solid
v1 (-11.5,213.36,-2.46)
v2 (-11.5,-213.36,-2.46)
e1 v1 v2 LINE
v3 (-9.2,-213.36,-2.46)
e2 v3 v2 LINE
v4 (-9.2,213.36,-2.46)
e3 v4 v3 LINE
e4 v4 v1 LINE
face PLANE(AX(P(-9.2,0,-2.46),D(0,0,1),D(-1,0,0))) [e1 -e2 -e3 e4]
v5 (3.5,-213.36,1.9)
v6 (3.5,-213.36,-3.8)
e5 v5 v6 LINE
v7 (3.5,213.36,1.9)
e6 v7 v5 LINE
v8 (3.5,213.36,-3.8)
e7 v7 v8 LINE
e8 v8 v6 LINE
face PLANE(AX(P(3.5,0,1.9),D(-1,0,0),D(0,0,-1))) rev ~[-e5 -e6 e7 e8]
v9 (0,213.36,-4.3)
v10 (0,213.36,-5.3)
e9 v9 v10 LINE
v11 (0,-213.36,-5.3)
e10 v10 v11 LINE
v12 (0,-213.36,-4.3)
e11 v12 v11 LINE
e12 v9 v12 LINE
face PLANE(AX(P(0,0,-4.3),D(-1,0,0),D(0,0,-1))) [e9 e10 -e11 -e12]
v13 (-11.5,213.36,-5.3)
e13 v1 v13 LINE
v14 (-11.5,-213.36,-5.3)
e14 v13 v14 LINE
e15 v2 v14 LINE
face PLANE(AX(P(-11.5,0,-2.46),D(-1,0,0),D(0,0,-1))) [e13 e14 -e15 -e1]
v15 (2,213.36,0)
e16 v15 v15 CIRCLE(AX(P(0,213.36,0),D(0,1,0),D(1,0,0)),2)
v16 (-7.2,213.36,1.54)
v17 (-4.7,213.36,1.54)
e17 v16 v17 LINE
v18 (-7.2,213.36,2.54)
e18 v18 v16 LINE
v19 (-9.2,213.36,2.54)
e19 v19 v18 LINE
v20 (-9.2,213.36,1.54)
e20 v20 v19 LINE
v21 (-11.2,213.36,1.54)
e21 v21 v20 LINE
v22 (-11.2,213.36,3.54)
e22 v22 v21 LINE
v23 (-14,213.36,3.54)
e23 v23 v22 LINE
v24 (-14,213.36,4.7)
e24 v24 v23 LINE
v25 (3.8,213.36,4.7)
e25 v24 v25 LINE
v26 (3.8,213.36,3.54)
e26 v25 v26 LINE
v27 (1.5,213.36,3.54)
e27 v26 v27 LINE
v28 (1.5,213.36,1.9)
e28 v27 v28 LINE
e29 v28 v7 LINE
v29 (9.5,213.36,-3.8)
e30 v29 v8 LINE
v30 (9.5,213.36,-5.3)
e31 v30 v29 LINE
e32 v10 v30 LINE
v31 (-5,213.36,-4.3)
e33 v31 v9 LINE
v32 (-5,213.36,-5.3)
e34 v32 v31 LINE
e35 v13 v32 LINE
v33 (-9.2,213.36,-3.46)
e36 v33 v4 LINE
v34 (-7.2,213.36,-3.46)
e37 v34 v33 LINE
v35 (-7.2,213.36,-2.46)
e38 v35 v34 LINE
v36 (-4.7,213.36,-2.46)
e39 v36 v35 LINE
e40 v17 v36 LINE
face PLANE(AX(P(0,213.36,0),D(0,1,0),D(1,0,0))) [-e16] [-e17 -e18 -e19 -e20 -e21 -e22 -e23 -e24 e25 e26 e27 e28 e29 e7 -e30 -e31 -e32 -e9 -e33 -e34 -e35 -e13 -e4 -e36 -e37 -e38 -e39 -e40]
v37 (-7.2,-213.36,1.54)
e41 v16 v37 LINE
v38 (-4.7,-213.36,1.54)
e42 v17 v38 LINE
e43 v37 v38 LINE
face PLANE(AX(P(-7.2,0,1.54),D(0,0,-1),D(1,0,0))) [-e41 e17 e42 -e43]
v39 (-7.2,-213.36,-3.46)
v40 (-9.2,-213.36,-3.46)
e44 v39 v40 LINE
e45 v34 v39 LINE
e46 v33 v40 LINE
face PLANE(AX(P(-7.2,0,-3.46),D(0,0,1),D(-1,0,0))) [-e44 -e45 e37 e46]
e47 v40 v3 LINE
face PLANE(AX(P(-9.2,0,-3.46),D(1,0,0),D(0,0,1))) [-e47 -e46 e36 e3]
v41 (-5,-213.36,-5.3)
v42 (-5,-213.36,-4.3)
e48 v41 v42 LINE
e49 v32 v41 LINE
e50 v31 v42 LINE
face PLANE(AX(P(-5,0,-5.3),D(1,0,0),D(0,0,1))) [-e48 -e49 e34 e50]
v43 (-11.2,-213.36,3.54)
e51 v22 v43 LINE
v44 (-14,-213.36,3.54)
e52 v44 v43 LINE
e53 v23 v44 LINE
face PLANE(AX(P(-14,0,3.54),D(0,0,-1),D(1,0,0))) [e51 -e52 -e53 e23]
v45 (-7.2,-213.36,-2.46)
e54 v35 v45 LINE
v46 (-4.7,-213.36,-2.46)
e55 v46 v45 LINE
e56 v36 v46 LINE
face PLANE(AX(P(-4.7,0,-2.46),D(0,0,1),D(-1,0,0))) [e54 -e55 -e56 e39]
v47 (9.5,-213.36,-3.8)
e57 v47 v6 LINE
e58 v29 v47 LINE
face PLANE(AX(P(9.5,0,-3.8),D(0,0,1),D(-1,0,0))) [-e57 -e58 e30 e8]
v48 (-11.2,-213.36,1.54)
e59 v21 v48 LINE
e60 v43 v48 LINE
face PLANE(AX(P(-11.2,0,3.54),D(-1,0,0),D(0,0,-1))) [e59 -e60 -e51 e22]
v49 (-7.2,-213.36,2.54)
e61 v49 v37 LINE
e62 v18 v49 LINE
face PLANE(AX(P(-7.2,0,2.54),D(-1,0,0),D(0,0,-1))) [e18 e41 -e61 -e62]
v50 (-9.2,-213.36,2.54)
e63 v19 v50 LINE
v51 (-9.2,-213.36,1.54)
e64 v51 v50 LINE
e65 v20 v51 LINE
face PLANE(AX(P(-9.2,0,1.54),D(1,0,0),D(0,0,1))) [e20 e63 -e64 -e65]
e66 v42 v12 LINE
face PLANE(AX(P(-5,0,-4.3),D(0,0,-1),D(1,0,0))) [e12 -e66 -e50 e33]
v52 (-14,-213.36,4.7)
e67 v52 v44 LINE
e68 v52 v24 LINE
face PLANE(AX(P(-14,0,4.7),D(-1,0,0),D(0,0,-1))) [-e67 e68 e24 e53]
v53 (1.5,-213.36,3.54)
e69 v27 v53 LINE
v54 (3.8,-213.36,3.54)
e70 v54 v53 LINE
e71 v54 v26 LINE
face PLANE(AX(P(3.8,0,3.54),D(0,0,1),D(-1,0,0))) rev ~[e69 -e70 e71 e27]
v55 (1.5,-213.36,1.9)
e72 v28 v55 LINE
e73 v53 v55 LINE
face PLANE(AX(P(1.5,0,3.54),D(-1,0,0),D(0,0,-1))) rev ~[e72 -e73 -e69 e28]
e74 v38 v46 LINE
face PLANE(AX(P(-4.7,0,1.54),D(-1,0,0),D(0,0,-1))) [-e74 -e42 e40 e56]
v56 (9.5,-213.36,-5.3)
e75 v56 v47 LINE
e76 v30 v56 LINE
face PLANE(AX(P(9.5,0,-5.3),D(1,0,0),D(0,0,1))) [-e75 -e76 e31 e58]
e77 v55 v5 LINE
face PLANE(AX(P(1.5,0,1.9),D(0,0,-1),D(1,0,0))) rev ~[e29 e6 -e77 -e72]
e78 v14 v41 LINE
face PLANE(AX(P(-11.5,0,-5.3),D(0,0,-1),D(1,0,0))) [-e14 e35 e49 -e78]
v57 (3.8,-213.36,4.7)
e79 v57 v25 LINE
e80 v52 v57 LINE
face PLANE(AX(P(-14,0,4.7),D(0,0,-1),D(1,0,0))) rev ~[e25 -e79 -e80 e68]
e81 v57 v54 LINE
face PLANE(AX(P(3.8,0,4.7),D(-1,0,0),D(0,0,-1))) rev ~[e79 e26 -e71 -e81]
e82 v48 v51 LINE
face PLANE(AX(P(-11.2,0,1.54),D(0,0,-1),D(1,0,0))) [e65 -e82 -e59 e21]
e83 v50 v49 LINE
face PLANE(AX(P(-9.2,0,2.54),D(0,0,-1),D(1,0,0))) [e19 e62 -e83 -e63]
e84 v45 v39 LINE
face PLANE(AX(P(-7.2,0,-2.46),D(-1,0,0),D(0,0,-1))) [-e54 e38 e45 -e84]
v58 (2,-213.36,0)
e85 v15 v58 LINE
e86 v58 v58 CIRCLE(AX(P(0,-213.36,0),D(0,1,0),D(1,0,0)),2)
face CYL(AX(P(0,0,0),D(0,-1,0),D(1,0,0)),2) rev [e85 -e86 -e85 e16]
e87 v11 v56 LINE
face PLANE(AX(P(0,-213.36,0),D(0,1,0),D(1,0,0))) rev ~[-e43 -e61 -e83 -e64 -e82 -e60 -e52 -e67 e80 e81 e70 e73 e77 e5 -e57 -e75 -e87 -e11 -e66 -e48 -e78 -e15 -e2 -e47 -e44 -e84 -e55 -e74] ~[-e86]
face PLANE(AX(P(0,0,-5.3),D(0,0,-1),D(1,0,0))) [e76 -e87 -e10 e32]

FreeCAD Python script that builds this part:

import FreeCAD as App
import Part
import Sketcher
Q = App.Units.Quantity


def add_polygon(sketch, points):
    """Adds a closed chain of lines whose ends are joined by coincident constraints."""
    first, n = sketch.GeometryCount, len(points)
    for a, b in zip(points, points[1:] + points[:1]):
        sketch.addGeometry(Part.LineSegment(App.Vector(*a, 0), App.Vector(*b, 0)), False)
    for i in range(n):
        sketch.addConstraint(Sketcher.Constraint("Coincident", first + i, 2, first + (i + 1) % n, 1))

doc = App.newDocument("Part")
body = doc.addObject("PartDesign::Body", "Body")

sketch1 = doc.addObject("Sketcher::SketchObject", "Sketch")
body.addObject(sketch1)
sketch1.AttachmentSupport = (doc.XZ_Plane, [""])
sketch1.MapMode = "FlatFace"
add_polygon(sketch1, [(-14, 3.5), (-14, 4.7), (3.8, 4.7), (3.8, 3.5), (1.5, 3.5), (1.5, 1.9), (3.5, 1.9), (3.5, -3.8), (9.5, -3.8), (9.5, -5.3), (0, -5.3), (0, -4.3), (-5, -4.3), (-5, -5.3), (-11.5, -5.3), (-11.5, -2.5), (-9.2, -2.5), (-9.2, -3.5), (-7.2, -3.5), (-7.2, -2.5), (-4.7, -2.5), (-4.7, 1.5), (-7.2, 1.5), (-7.2, 2.5), (-9.2, 2.5), (-9.2, 1.5), (-11.2, 1.5), (-11.2, 3.5)])
sketch1.addGeometry(Part.Circle(App.Vector(0, 0, 0), App.Vector(0, 0, 1), 2), False)
sketch1.addConstraint(Sketcher.Constraint("Vertical", 0))
sketch1.addConstraint(Sketcher.Constraint("Horizontal", 1))
sketch1.addConstraint(Sketcher.Constraint("Vertical", 2))
sketch1.addConstraint(Sketcher.Constraint("Horizontal", 3))
sketch1.addConstraint(Sketcher.Constraint("Vertical", 4))
sketch1.addConstraint(Sketcher.Constraint("Horizontal", 5))
sketch1.addConstraint(Sketcher.Constraint("Vertical", 6))
sketch1.addConstraint(Sketcher.Constraint("Horizontal", 7))
sketch1.addConstraint(Sketcher.Constraint("Vertical", 8))
sketch1.addConstraint(Sketcher.Constraint("Horizontal", 9))
sketch1.addConstraint(Sketcher.Constraint("Vertical", 10))
sketch1.addConstraint(Sketcher.Constraint("Horizontal", 11))
sketch1.addConstraint(Sketcher.Constraint("Vertical", 12))
sketch1.addConstraint(Sketcher.Constraint("Horizontal", 13))
sketch1.addConstraint(Sketcher.Constraint("Vertical", 14))
sketch1.addConstraint(Sketcher.Constraint("Horizontal", 15))
sketch1.addConstraint(Sketcher.Constraint("Vertical", 16))
sketch1.addConstraint(Sketcher.Constraint("Horizontal", 17))
sketch1.addConstraint(Sketcher.Constraint("Vertical", 18))
sketch1.addConstraint(Sketcher.Constraint("Horizontal", 19))
sketch1.addConstraint(Sketcher.Constraint("Vertical", 20))
sketch1.addConstraint(Sketcher.Constraint("Horizontal", 21))
sketch1.addConstraint(Sketcher.Constraint("Vertical", 22))
sketch1.addConstraint(Sketcher.Constraint("Horizontal", 23))
sketch1.addConstraint(Sketcher.Constraint("Vertical", 24))
sketch1.addConstraint(Sketcher.Constraint("Horizontal", 25))
sketch1.addConstraint(Sketcher.Constraint("Vertical", 26))
sketch1.addConstraint(Sketcher.Constraint("Horizontal", 27))
sketch1.addConstraint(Sketcher.Constraint("Coincident", 28, 3, -1, 1))
sketch1.addConstraint(Sketcher.Constraint("PointOnObject", 9, 2, -2))
sketch1.addConstraint(Sketcher.Constraint("Horizontal", 9, 2, 12, 2))
sketch1.addConstraint(Sketcher.Constraint("Horizontal", 15, 2, 18, 2))
sketch1.addConstraint(Sketcher.Constraint("Horizontal", 21, 2, 24, 2))
sketch1.addConstraint(Sketcher.Constraint("Horizontal", 3, 2, 26, 2))
sketch1.addConstraint(Sketcher.Constraint("Vertical", 18, 2, 21, 2))
sketch1.addConstraint(Sketcher.Constraint("Vertical", 16, 2, 23, 2))
sketch1.addConstraint(Sketcher.Constraint("Equal", 3, 15))
sketch1.addConstraint(Sketcher.Constraint("Equal", 5, 17))
sketch1.addConstraint(Sketcher.Constraint("Equal", 23, 25))
sketch1.addConstraint(Sketcher.Constraint("Equal", 12, 16))
sketch1.addConstraint(Sketcher.Constraint("Equal", 18, 22))
sketch1.addConstraint(Sketcher.Constraint("Equal", 25, 26))
sketch1.addConstraint(Sketcher.Constraint("Diameter", 28, Q("4 mm")))
sketch1.addConstraint(Sketcher.Constraint("DistanceX", 5, 1, 5, 2, Q("2 mm")))
sketch1.addConstraint(Sketcher.Constraint("DistanceX", 7, 1, 7, 2, Q("6 mm")))
sketch1.addConstraint(Sketcher.Constraint("DistanceX", 11, 2, 11, 1, Q("5 mm")))
sketch1.addConstraint(Sketcher.Constraint("DistanceY", 10, 1, 10, 2, Q("1 mm")))
sketch1.addConstraint(Sketcher.Constraint("DistanceY", 20, 1, 20, 2, Q("4 mm")))
sketch1.addConstraint(Sketcher.Constraint("DistanceX", 1, 1, 1, 2, Q("17.8 mm")))
sketch1.addConstraint(Sketcher.Constraint("DistanceX", 9, 2, 9, 1, Q("9.5 mm")))
sketch1.addConstraint(Sketcher.Constraint("DistanceX", 13, 2, 13, 1, Q("6.5 mm")))
sketch1.addConstraint(Sketcher.Constraint("DistanceX", 19, 1, 19, 2, Q("2.5 mm")))
sketch1.addConstraint(Sketcher.Constraint("DistanceY", 8, 2, 8, 1, Q("1.5 mm")))
sketch1.addConstraint(Sketcher.Constraint("DistanceY", 13, 2, 0, 2, Q("10 mm")))
sketch1.addConstraint(Sketcher.Constraint("DistanceY", 0, 1, 0, 2, Q("1.16 mm")))
sketch1.addConstraint(Sketcher.Constraint("DistanceY", 4, 2, 4, 1, Q("1.64 mm")))
sketch1.addConstraint(Sketcher.Constraint("DistanceX", -1, 1, 1, 2, Q("3.8 mm")))
sketch1.addConstraint(Sketcher.Constraint("DistanceY", 6, 2, -1, 1, Q("3.8 mm")))
pad1 = doc.addObject("PartDesign::Pad", "Pad")
body.addObject(pad1)
pad1.Profile = sketch1
pad1.Length = 426.72
pad1.Midplane = True

doc.recompute()
